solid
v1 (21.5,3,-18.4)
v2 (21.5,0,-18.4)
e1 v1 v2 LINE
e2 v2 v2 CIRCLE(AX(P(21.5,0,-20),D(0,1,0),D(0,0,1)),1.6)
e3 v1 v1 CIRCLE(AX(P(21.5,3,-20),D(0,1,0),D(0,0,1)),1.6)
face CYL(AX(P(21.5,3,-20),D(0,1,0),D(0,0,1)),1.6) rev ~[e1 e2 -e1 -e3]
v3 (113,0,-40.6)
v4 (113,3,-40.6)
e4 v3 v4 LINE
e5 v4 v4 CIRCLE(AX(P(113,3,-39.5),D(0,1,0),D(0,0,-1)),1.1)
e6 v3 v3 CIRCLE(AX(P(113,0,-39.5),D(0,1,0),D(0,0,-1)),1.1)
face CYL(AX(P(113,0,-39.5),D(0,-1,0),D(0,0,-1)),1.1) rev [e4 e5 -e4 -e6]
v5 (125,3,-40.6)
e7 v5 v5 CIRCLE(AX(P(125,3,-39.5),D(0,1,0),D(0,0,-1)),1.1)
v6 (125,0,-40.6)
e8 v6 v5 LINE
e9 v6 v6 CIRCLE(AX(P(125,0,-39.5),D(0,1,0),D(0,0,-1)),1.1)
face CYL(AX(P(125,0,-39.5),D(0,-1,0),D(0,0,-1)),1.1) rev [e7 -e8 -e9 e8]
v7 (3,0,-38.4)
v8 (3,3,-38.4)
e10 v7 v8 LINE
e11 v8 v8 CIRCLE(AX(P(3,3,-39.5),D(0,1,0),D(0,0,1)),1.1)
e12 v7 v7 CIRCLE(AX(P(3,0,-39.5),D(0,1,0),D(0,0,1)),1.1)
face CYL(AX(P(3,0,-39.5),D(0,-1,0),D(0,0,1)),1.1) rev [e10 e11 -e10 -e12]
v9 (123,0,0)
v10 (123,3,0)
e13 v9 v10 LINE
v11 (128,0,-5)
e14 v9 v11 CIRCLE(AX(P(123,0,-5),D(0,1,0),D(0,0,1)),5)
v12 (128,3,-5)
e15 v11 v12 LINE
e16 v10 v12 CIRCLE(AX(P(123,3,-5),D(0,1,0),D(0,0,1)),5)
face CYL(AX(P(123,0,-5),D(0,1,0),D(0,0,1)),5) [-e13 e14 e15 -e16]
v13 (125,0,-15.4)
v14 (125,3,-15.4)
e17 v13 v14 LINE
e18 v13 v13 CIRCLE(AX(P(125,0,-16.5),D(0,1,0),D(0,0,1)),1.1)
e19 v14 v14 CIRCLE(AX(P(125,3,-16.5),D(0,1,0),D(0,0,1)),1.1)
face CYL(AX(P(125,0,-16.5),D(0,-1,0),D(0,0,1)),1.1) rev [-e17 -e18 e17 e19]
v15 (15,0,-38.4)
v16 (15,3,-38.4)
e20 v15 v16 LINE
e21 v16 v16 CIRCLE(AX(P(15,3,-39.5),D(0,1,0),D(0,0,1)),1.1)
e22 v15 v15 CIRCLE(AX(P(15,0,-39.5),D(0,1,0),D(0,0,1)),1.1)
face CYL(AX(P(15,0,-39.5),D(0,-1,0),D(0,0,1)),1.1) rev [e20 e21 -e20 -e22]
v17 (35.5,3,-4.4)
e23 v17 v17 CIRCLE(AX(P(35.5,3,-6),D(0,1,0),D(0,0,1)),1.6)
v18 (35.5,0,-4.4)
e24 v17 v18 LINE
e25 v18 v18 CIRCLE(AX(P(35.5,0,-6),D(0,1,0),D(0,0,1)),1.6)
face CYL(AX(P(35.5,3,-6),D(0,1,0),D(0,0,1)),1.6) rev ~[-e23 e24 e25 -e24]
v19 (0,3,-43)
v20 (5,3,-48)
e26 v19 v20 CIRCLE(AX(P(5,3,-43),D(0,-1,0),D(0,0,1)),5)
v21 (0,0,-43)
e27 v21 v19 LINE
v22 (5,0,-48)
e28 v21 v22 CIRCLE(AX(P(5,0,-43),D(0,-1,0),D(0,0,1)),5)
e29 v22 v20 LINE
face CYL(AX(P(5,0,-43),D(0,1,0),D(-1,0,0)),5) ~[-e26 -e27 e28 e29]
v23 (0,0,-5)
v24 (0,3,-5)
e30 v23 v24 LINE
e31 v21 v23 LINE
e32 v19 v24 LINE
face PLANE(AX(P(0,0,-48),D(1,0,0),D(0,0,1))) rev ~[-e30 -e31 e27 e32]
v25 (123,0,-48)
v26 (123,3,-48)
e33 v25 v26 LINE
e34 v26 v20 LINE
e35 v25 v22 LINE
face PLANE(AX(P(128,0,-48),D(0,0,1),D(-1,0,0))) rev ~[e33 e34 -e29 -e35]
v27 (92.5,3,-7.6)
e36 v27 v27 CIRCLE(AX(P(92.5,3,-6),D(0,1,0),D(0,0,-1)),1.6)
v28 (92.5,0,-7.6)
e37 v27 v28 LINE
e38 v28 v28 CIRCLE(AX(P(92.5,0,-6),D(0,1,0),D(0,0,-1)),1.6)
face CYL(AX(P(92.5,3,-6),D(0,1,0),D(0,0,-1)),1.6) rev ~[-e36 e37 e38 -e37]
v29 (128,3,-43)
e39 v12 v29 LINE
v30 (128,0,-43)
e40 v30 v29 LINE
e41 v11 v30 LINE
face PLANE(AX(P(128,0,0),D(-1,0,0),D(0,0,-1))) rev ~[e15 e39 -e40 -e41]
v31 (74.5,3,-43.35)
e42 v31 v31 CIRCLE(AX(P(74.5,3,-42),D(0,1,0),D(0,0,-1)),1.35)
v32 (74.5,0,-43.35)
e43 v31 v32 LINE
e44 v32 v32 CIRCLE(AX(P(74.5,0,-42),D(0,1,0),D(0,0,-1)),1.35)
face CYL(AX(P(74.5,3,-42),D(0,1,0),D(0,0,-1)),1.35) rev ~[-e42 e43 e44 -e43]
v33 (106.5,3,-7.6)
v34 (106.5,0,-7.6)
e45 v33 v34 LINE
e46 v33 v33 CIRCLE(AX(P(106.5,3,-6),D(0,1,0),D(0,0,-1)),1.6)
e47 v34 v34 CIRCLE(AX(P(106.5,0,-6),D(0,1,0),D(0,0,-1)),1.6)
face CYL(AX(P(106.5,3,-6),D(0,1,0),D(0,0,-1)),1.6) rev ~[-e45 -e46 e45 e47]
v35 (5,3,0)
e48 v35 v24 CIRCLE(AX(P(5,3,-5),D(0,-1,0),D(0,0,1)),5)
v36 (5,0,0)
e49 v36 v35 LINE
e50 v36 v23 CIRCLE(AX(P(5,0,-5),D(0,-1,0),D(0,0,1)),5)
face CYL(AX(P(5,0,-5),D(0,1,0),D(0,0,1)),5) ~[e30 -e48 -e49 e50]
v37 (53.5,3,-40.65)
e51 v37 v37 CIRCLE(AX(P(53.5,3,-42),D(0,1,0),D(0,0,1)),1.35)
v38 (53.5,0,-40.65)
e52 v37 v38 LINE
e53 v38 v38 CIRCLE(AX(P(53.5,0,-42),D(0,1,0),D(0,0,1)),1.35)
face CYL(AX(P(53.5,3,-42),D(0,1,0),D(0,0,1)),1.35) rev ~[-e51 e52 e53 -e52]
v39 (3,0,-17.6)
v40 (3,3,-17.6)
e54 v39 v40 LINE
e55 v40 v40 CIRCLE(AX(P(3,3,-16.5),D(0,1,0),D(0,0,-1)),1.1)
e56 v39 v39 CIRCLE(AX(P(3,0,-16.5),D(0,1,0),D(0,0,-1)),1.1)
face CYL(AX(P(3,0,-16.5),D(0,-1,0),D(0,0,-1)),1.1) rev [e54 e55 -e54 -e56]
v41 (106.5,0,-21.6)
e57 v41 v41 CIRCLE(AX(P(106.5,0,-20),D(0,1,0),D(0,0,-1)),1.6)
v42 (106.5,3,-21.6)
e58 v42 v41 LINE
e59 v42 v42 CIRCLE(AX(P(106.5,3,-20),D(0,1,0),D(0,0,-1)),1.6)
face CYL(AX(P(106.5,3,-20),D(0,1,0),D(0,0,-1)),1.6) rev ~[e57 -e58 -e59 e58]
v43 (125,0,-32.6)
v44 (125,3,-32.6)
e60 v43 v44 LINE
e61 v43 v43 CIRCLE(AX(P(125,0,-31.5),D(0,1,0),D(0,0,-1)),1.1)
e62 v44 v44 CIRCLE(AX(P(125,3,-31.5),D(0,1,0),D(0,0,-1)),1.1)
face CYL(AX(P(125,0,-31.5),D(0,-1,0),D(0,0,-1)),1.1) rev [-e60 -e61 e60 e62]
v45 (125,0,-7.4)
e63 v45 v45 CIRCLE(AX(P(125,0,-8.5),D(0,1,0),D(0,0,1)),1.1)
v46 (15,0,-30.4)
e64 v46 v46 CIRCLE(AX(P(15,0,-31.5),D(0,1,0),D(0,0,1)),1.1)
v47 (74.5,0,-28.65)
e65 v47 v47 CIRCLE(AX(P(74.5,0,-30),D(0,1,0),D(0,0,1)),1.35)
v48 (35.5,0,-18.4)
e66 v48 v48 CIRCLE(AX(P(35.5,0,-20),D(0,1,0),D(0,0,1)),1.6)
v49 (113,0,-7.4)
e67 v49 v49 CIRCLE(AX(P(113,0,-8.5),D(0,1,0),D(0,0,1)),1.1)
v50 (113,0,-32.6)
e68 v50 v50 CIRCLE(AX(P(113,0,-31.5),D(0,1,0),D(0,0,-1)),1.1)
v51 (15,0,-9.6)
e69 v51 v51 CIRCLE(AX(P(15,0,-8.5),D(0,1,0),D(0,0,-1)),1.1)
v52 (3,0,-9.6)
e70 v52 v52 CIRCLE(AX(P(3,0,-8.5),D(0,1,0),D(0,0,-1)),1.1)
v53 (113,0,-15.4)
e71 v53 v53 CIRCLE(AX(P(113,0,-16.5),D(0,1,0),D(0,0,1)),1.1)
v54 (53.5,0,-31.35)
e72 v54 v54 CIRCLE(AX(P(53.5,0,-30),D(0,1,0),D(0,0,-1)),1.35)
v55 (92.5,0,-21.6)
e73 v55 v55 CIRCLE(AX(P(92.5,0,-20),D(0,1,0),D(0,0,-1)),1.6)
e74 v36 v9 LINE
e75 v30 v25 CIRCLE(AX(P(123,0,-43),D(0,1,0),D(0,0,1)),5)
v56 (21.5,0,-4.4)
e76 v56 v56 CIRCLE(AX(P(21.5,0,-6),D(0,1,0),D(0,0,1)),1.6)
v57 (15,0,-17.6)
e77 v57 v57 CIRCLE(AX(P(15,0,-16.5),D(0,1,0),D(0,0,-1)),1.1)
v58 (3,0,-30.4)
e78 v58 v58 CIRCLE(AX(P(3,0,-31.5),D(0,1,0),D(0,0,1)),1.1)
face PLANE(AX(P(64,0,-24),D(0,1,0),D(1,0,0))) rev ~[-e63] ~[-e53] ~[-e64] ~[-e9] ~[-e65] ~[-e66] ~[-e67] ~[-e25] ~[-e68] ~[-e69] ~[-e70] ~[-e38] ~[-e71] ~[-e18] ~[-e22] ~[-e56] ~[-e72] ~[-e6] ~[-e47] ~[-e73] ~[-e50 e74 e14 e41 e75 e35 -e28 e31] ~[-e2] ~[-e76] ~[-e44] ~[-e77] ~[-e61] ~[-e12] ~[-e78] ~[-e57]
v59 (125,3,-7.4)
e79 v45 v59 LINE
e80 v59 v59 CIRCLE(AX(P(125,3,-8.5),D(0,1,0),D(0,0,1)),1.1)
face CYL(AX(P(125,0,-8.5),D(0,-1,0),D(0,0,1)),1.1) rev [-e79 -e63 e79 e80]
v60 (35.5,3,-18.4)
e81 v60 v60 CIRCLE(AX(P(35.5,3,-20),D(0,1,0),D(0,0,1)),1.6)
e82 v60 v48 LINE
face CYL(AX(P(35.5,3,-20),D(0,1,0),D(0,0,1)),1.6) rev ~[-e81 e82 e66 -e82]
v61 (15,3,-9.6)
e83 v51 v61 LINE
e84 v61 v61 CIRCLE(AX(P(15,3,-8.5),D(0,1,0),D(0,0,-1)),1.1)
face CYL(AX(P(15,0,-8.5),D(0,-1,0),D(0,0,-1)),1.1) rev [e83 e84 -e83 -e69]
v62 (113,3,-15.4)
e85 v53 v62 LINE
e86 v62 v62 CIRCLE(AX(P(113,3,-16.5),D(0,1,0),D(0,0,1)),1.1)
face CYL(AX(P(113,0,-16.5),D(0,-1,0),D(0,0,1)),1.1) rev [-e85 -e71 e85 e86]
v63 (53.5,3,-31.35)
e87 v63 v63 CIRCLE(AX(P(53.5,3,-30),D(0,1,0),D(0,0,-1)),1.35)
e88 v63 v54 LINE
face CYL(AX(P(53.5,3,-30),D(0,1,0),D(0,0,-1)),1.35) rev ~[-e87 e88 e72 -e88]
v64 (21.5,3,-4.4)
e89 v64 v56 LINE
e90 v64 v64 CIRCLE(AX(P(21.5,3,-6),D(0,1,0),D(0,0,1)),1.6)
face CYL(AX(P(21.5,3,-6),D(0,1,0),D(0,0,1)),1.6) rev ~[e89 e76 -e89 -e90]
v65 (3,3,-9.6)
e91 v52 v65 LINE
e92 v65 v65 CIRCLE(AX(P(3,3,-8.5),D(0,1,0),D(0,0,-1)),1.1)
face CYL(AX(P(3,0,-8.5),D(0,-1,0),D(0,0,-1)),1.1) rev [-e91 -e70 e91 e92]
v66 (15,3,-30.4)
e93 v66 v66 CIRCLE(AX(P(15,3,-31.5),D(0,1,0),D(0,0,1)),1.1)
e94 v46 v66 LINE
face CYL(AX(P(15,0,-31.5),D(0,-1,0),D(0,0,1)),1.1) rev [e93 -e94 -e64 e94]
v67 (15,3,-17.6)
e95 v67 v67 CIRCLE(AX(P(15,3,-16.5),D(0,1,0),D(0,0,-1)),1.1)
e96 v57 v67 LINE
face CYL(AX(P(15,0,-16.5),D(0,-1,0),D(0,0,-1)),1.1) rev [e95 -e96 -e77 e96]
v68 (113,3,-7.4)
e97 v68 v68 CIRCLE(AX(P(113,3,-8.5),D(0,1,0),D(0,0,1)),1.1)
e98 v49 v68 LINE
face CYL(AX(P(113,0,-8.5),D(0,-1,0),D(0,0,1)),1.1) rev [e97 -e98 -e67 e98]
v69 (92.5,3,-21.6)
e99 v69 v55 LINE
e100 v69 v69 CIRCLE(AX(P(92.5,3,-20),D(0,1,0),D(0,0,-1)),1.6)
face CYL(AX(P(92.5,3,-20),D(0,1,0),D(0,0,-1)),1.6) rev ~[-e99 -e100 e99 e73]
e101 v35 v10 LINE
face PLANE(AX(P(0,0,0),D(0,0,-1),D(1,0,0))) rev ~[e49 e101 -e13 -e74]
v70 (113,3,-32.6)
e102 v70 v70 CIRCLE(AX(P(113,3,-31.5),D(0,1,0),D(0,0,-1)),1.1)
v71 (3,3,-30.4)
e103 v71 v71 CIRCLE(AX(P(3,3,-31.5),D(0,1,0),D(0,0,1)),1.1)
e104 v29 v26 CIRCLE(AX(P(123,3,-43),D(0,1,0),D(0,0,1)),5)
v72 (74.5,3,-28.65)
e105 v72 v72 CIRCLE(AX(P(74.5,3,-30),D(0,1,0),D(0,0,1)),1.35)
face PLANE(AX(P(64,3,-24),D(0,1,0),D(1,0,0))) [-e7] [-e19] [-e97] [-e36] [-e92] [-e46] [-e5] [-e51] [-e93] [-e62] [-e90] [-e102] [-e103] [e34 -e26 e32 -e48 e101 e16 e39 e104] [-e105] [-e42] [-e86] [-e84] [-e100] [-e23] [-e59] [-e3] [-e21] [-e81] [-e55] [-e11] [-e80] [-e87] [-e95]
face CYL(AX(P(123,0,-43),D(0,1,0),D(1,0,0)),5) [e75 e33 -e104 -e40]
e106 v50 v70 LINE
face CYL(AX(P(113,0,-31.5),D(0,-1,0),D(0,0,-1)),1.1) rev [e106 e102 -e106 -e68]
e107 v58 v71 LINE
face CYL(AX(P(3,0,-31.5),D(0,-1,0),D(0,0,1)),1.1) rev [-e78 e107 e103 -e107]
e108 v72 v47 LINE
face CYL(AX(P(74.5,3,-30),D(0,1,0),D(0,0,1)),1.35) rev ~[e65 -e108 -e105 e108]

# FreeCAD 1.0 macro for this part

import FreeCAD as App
import Part
import Sketcher
Q = App.Units.Quantity


def edges_at(feature, points):
    """Names of the edges that pass closest to the given points."""
    edges = feature.Shape.Edges
    near = lambda p: min(range(len(edges)), key=lambda i: edges[i].distToShape(Part.Vertex(*p))[0])
    return sorted({f"Edge{near(p) + 1}" for p in points})


def add_polygon(sketch, points):
    """Adds a closed chain of lines whose ends are joined by coincident constraints."""
    first, n = sketch.GeometryCount, len(points)
    for a, b in zip(points, points[1:] + points[:1]):
        sketch.addGeometry(Part.LineSegment(App.Vector(*a, 0), App.Vector(*b, 0)), False)
    for i in range(n):
        sketch.addConstraint(Sketcher.Constraint("Coincident", first + i, 2, first + (i + 1) % n, 1))

doc = App.newDocument("Part")
body = doc.addObject("PartDesign::Body", "Body")

sketch1 = body.newObject("Sketcher::SketchObject", "Sketch")
sketch1.AttachmentSupport = (doc.getObject("XZ_Plane"), [""])
sketch1.MapMode = "FlatFace"
add_polygon(sketch1, [(0, 0), (128, 0), (128, -48), (0, -48)])
sketch1.addGeometry(Part.Circle(App.Vector(3, -8.5, 0), App.Vector(0, 0, 1), 1.1), False)
sketch1.addGeometry(Part.Circle(App.Vector(15, -8.5, 0), App.Vector(0, 0, 1), 1.1), False)
sketch1.addGeometry(Part.Circle(App.Vector(3, -16.5, 0), App.Vector(0, 0, 1), 1.1), False)
sketch1.addGeometry(Part.Circle(App.Vector(15, -16.5, 0), App.Vector(0, 0, 1), 1.1), False)
sketch1.addGeometry(Part.Circle(App.Vector(113, -8.5, 0), App.Vector(0, 0, 1), 1.1), False)
sketch1.addGeometry(Part.Circle(App.Vector(125, -8.5, 0), App.Vector(0, 0, 1), 1.1), False)
sketch1.addGeometry(Part.Circle(App.Vector(113, -16.5, 0), App.Vector(0, 0, 1), 1.1), False)
sketch1.addGeometry(Part.Circle(App.Vector(125, -16.5, 0), App.Vector(0, 0, 1), 1.1), False)
sketch1.addGeometry(Part.Circle(App.Vector(3, -31.5, 0), App.Vector(0, 0, 1), 1.1), False)
sketch1.addGeometry(Part.Circle(App.Vector(15, -31.5, 0), App.Vector(0, 0, 1), 1.1), False)
sketch1.addGeometry(Part.Circle(App.Vector(3, -39.5, 0), App.Vector(0, 0, 1), 1.1), False)
sketch1.addGeometry(Part.Circle(App.Vector(15, -39.5, 0), App.Vector(0, 0, 1), 1.1), False)
sketch1.addGeometry(Part.Circle(App.Vector(113, -31.5, 0), App.Vector(0, 0, 1), 1.1), False)
sketch1.addGeometry(Part.Circle(App.Vector(125, -31.5, 0), App.Vector(0, 0, 1), 1.1), False)
sketch1.addGeometry(Part.Circle(App.Vector(113, -39.5, 0), App.Vector(0, 0, 1), 1.1), False)
sketch1.addGeometry(Part.Circle(App.Vector(125, -39.5, 0), App.Vector(0, 0, 1), 1.1), False)
sketch1.addConstraint([
    Sketcher.Constraint("Horizontal", 0),
    Sketcher.Constraint("Vertical", 1),
    Sketcher.Constraint("Horizontal", 2),
    Sketcher.Constraint("Vertical", 3),
    Sketcher.Constraint("Coincident", 3, 2, -1, 1),
    Sketcher.Constraint("Equal", 4, 5),
    Sketcher.Constraint("Equal", 5, 6),
    Sketcher.Constraint("Equal", 6, 7),
    Sketcher.Constraint("Equal", 7, 8),
    Sketcher.Constraint("Equal", 8, 9),
    Sketcher.Constraint("Equal", 9, 10),
    Sketcher.Constraint("Equal", 10, 11),
    Sketcher.Constraint("Equal", 11, 12),
    Sketcher.Constraint("Equal", 12, 13),
    Sketcher.Constraint("Equal", 13, 14),
    Sketcher.Constraint("Equal", 14, 15),
    Sketcher.Constraint("Equal", 15, 16),
    Sketcher.Constraint("Equal", 16, 17),
    Sketcher.Constraint("Equal", 17, 18),
    Sketcher.Constraint("Equal", 18, 19),
    Sketcher.Constraint("Horizontal", 4, 3, 5, 3),
    Sketcher.Constraint("Horizontal", 6, 3, 7, 3),
    Sketcher.Constraint("Horizontal", 5, 3, 8, 3),
    Sketcher.Constraint("Horizontal", 8, 3, 9, 3),
    Sketcher.Constraint("Horizontal", 7, 3, 10, 3),
    Sketcher.Constraint("Horizontal", 10, 3, 11, 3),
    Sketcher.Constraint("Horizontal", 12, 3, 13, 3),
    Sketcher.Constraint("Horizontal", 14, 3, 15, 3),
    Sketcher.Constraint("Horizontal", 13, 3, 16, 3),
    Sketcher.Constraint("Horizontal", 16, 3, 17, 3),
    Sketcher.Constraint("Horizontal", 15, 3, 18, 3),
    Sketcher.Constraint("Horizontal", 18, 3, 19, 3),
    Sketcher.Constraint("Vertical", 4, 3, 6, 3),
    Sketcher.Constraint("Vertical", 5, 3, 7, 3),
    Sketcher.Constraint("Vertical", 8, 3, 10, 3),
    Sketcher.Constraint("Vertical", 9, 3, 11, 3),
    Sketcher.Constraint("Vertical", 6, 3, 12, 3),
    Sketcher.Constraint("Vertical", 7, 3, 13, 3),
    Sketcher.Constraint("Vertical", 12, 3, 14, 3),
    Sketcher.Constraint("Vertical", 13, 3, 15, 3),
    Sketcher.Constraint("Vertical", 10, 3, 16, 3),
    Sketcher.Constraint("Vertical", 11, 3, 17, 3),
    Sketcher.Constraint("Vertical", 16, 3, 18, 3),
    Sketcher.Constraint("Vertical", 17, 3, 19, 3),
    Sketcher.Constraint("Diameter", 4, Q("2.2 mm")),
    Sketcher.Constraint("DistanceX", 0, 1, 0, 2, Q("128 mm")),
    Sketcher.Constraint("DistanceY", 1, 2, 1, 1, Q("48 mm")),
    Sketcher.Constraint("DistanceX", -1, 1, 4, 3, Q("3 mm")),
    Sketcher.Constraint("DistanceX", -1, 1, 5, 3, Q("15 mm")),
    Sketcher.Constraint("DistanceX", -1, 1, 8, 3, Q("113 mm")),
    Sketcher.Constraint("DistanceX", -1, 1, 9, 3, Q("125 mm")),
    Sketcher.Constraint("DistanceY", 6, 3, 4, 3, Q("8 mm")),
    Sketcher.Constraint("DistanceY", 12, 3, 6, 3, Q("15 mm")),
    Sketcher.Constraint("DistanceY", 14, 3, 12, 3, Q("8 mm")),
    Sketcher.Constraint("DistanceY", 4, 3, -1, 1, Q("8.5 mm")),
])
pad1 = body.newObject("PartDesign::Pad", "Pad")
pad1.Profile = sketch1
pad1.Length = 3
pad1.Reversed = True

sketch2 = body.newObject("Sketcher::SketchObject", "Sketch001")
sketch2.AttachmentSupport = (doc.getObject("XZ_Plane"), [""])
sketch2.MapMode = "FlatFace"
sketch2.AttachmentOffset = App.Placement(App.Vector(0, 0, -3), App.Rotation())
sketch2.addGeometry([
    Part.Circle(App.Vector(21.5, -20, 0), App.Vector(0, 0, 1), 1.6),
    Part.Circle(App.Vector(35.5, -20, 0), App.Vector(0, 0, 1), 1.6),
    Part.Circle(App.Vector(35.5, -6, 0), App.Vector(0, 0, 1), 1.6),
    Part.Circle(App.Vector(21.5, -6, 0), App.Vector(0, 0, 1), 1.6),
    Part.Circle(App.Vector(106.5, -6, 0), App.Vector(0, 0, 1), 1.6),
    Part.Circle(App.Vector(92.5, -6, 0), App.Vector(0, 0, 1), 1.6),
    Part.Circle(App.Vector(92.5, -20, 0), App.Vector(0, 0, 1), 1.6),
    Part.Circle(App.Vector(106.5, -20, 0), App.Vector(0, 0, 1), 1.6),
], False)
sketch2.addConstraint([
    Sketcher.Constraint("Equal", 0, 1),
    Sketcher.Constraint("Equal", 1, 2),
    Sketcher.Constraint("Equal", 2, 3),
    Sketcher.Constraint("Equal", 3, 4),
    Sketcher.Constraint("Equal", 4, 5),
    Sketcher.Constraint("Equal", 5, 6),
    Sketcher.Constraint("Equal", 6, 7),
    Sketcher.Constraint("Horizontal", 0, 3, 1, 3),
    Sketcher.Constraint("Horizontal", 2, 3, 3, 3),
    Sketcher.Constraint("Horizontal", 3, 3, 4, 3),
    Sketcher.Constraint("Horizontal", 4, 3, 5, 3),
    Sketcher.Constraint("Horizontal", 1, 3, 6, 3),
    Sketcher.Constraint("Horizontal", 6, 3, 7, 3),
    Sketcher.Constraint("Vertical", 1, 3, 2, 3),
    Sketcher.Constraint("Vertical", 0, 3, 3, 3),
    Sketcher.Constraint("Vertical", 5, 3, 6, 3),
    Sketcher.Constraint("Vertical", 4, 3, 7, 3),
    Sketcher.Constraint("Diameter", 0, Q("3.2 mm")),
    Sketcher.Constraint("DistanceY", 0, 3, -1, 1, Q("20 mm")),
    Sketcher.Constraint("DistanceY", 2, 3, -1, 1, Q("6 mm")),
    Sketcher.Constraint("DistanceX", 0, 3, 1, 3, Q("14 mm")),
    Sketcher.Constraint("DistanceX", 2, 3, 4, 3, Q("71 mm")),
    Sketcher.Constraint("DistanceX", 5, 3, 4, 3, Q("14 mm")),
    Sketcher.Constraint("DistanceX", -1, 1, 0, 3, Q("21.5 mm")),
])
pocket1 = body.newObject("PartDesign::Pocket", "Pocket")
pocket1.Profile = sketch2
pocket1.Type = "ThroughAll"
pocket1.Reversed = True

sketch3 = body.newObject("Sketcher::SketchObject", "Sketch002")
sketch3.AttachmentSupport = (doc.getObject("XZ_Plane"), [""])
sketch3.MapMode = "FlatFace"
sketch3.AttachmentOffset = App.Placement(App.Vector(0, 0, -3), App.Rotation())
sketch3.addGeometry([
    Part.Circle(App.Vector(53.5, -42, 0), App.Vector(0, 0, 1), 1.4),
    Part.Circle(App.Vector(74.5, -42, 0), App.Vector(0, 0, 1), 1.4),
    Part.Circle(App.Vector(74.5, -30, 0), App.Vector(0, 0, 1), 1.4),
    Part.Circle(App.Vector(53.5, -30, 0), App.Vector(0, 0, 1), 1.4),
], False)
sketch3.addConstraint([
    Sketcher.Constraint("Equal", 0, 1),
    Sketcher.Constraint("Equal", 1, 2),
    Sketcher.Constraint("Equal", 2, 3),
    Sketcher.Constraint("Horizontal", 0, 3, 1, 3),
    Sketcher.Constraint("Horizontal", 2, 3, 3, 3),
    Sketcher.Constraint("Vertical", 1, 3, 2, 3),
    Sketcher.Constraint("Vertical", 0, 3, 3, 3),
    Sketcher.Constraint("Diameter", 0, Q("2.7 mm")),
    Sketcher.Constraint("DistanceY", 0, 3, -1, 1, Q("42 mm")),
    Sketcher.Constraint("DistanceY", 2, 3, -1, 1, Q("30 mm")),
    Sketcher.Constraint("DistanceX", 0, 3, 1, 3, Q("21 mm")),
    Sketcher.Constraint("DistanceX", -1, 1, 0, 3, Q("53.5 mm")),
])
pocket2 = body.newObject("PartDesign::Pocket", "Pocket001")
pocket2.Profile = sketch3
pocket2.Type = "ThroughAll"
pocket2.Reversed = True
doc.recompute()

fillet = body.newObject("PartDesign::Fillet", "Fillet")
fillet.Base = (pocket2, edges_at(pocket2, [
    (0, 1.5, -48),
    (128, 1.5, -48),
    (128, 1.5, 0),
    (0, 1.5, 0),
]))
fillet.Radius = 5

doc.recompute()
